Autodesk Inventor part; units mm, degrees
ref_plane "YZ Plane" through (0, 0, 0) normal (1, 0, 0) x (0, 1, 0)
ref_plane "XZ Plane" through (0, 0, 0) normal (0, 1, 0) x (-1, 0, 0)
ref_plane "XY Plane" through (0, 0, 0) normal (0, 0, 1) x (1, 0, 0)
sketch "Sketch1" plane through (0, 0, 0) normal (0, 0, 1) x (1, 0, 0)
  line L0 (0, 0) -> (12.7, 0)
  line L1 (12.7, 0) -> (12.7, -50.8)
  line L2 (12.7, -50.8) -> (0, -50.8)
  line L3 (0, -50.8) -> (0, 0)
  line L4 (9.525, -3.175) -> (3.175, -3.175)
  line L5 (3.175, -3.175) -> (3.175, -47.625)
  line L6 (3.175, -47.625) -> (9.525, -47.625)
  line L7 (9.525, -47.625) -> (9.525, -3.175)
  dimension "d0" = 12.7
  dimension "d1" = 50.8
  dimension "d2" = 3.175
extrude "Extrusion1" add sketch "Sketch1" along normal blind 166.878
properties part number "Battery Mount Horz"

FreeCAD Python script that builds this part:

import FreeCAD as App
import Part
import Sketcher
from FreeCAD import Vector
Q = App.Units.Quantity

doc = App.newDocument("Part")
params = doc.addObject("Spreadsheet::Sheet", "Params")
for row, (alias, value) in enumerate([
    ("sketch1_height", "2 in"),
    ("sketch1_width", "0.5 in"),
    ("pad1_length", "6.57 in"),
], start=1):
    params.set(f"A{row}", alias)
    params.set(f"B{row}", "=" + value)
    params.setAlias(f"B{row}", alias)

body = doc.addObject("PartDesign::Body", "Body")

sketch1 = body.newObject("Sketcher::SketchObject", "Sketch")
sketch1.AttachmentSupport = (doc.getObject("XY_Plane"), [""])
sketch1.MapMode = "FlatFace"
sketch1.addGeometry([
    Part.LineSegment(Vector(13, 0, 0), Vector(0, 0, 0)),
    Part.LineSegment(Vector(0, 0, 0), Vector(0, -51, 0)),
    Part.LineSegment(Vector(0, -51, 0), Vector(13, -51, 0)),
    Part.LineSegment(Vector(13, -51, 0), Vector(13, 0, 0)),
    Part.LineSegment(Vector(3, -3, 0), Vector(10, -3, 0)),
    Part.LineSegment(Vector(10, -3, 0), Vector(10, -48, 0)),
    Part.LineSegment(Vector(10, -48, 0), Vector(3, -48, 0)),
    Part.LineSegment(Vector(3, -48, 0), Vector(3, -3, 0)),
], False)
sketch1.addConstraint([
    Sketcher.Constraint("Coincident", 0, 2, 1, 1),
    Sketcher.Constraint("Coincident", 1, 2, 2, 1),
    Sketcher.Constraint("Coincident", 2, 2, 3, 1),
    Sketcher.Constraint("Coincident", 3, 2, 0, 1),
    Sketcher.Constraint("Coincident", 4, 2, 5, 1),
    Sketcher.Constraint("Coincident", 5, 2, 6, 1),
    Sketcher.Constraint("Coincident", 6, 2, 7, 1),
    Sketcher.Constraint("Coincident", 7, 2, 4, 1),
    Sketcher.Constraint("Horizontal", 0),
    Sketcher.Constraint("Vertical", 1),
    Sketcher.Constraint("Horizontal", 2),
    Sketcher.Constraint("Vertical", 3),
    Sketcher.Constraint("Horizontal", 4),
    Sketcher.Constraint("Vertical", 5),
    Sketcher.Constraint("Horizontal", 6),
    Sketcher.Constraint("Vertical", 7),
    Sketcher.Constraint("Coincident", 0, 2, -1, 1),
    Sketcher.Constraint("DistanceY", 1, 2, 1, 1, Q("2 in")),
    Sketcher.Constraint("DistanceX", 0, 2, 0, 1, Q("0.5 in")),
    Sketcher.Constraint("DistanceY", 4, 2, -1, 1, Q("0.125 in")),
    Sketcher.Constraint("DistanceX", -1, 1, 6, 2, Q("0.125 in")),
    Sketcher.Constraint("DistanceX", 4, 2, 3, 2, Q("0.125 in")),
    Sketcher.Constraint("DistanceY", 2, 2, 5, 2, Q("0.125 in")),
])
sketch1.setExpression("Constraints[17]", "Params.sketch1_height")
sketch1.setExpression("Constraints[18]", "Params.sketch1_width")
pad1 = body.newObject("PartDesign::Pad", "Pad")
pad1.Profile = sketch1
pad1.setExpression("Length", "Params.pad1_length")

doc.recompute()
